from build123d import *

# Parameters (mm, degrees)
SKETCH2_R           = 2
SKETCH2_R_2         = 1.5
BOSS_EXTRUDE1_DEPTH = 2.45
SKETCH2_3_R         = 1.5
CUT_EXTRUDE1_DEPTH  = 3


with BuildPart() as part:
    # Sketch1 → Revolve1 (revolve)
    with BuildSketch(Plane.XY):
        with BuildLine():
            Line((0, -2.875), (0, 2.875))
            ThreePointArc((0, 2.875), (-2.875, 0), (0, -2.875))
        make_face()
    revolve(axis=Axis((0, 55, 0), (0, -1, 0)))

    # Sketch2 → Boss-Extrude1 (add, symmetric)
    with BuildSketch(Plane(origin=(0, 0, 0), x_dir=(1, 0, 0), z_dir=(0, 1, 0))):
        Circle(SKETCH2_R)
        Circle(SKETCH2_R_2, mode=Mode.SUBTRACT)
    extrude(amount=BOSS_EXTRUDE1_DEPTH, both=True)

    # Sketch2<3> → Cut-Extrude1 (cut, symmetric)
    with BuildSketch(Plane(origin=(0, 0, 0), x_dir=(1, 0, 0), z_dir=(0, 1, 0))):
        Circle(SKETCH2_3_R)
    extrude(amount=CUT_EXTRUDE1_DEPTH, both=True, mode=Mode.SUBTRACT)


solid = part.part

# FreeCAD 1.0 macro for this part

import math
import FreeCAD as App
import Part
import Sketcher
Q = App.Units.Quantity

doc = App.newDocument("Part")
body = doc.addObject("PartDesign::Body", "Body")

# Sketch on XY plane
sketch1 = body.newObject("Sketcher::SketchObject", "Sketch")
sketch1.AttachmentSupport = (doc.getObject("XY_Plane"), [""])
sketch1.MapMode = "FlatFace"
sketch1.addGeometry([
    Part.LineSegment(App.Vector(0, -2.875, 0), App.Vector(0, 2.875, 0)),
    Part.ArcOfCircle(Part.Circle(App.Vector(0, 0, 0), App.Vector(0, 0, 1), 2.875), math.radians(90), math.radians(270)),
], False)
sketch1.addConstraint([
    Sketcher.Constraint("Coincident", 0, 1, 1, 2),
    Sketcher.Constraint("Coincident", 1, 1, 0, 2),
    Sketcher.Constraint("Vertical", 0),
    Sketcher.Constraint("Coincident", 1, 3, -1, 1),
    Sketcher.Constraint("PointOnObject", 0, 1, -2),
    Sketcher.Constraint("Radius", 1, Q("2.875 mm")),
])
revolution = body.newObject("PartDesign::Revolution", "Revolution")
revolution.Profile = sketch1
revolution.ReferenceAxis = (sketch1, ["V_Axis"])
revolution.Angle = 360

# Sketch on XZ plane
sketch2 = body.newObject("Sketcher::SketchObject", "Sketch001")
sketch2.AttachmentSupport = (doc.getObject("XZ_Plane"), [""])
sketch2.MapMode = "FlatFace"
sketch2.addGeometry([
    Part.Circle(App.Vector(0, 0, 0), App.Vector(0, 0, 1), 2),
    Part.Circle(App.Vector(0, 0, 0), App.Vector(0, 0, 1), 1.5),
], False)
sketch2.addConstraint([
    Sketcher.Constraint("Coincident", 0, 3, -1, 1),
    Sketcher.Constraint("Coincident", 1, 3, -1, 1),
    Sketcher.Constraint("Diameter", 0, Q("4 mm")),
    Sketcher.Constraint("Diameter", 1, Q("3 mm")),
])
pad1 = body.newObject("PartDesign::Pad", "Pad")
pad1.Profile = sketch2
pad1.Length = 4.9
pad1.Midplane = True

# Sketch on XZ plane
sketch3 = body.newObject("Sketcher::SketchObject", "Sketch002")
sketch3.AttachmentSupport = (doc.getObject("XZ_Plane"), [""])
sketch3.MapMode = "FlatFace"
sketch3.addGeometry(Part.Circle(App.Vector(0, 0, 0), App.Vector(0, 0, 1), 1.5), False)
sketch3.addConstraint([
    Sketcher.Constraint("Coincident", 0, 3, -1, 1),
    Sketcher.Constraint("Diameter", 0, Q("3 mm")),
])
pocket1 = body.newObject("PartDesign::Pocket", "Pocket")
pocket1.Profile = sketch3
pocket1.Length = 6
pocket1.Midplane = True

doc.recompute()
